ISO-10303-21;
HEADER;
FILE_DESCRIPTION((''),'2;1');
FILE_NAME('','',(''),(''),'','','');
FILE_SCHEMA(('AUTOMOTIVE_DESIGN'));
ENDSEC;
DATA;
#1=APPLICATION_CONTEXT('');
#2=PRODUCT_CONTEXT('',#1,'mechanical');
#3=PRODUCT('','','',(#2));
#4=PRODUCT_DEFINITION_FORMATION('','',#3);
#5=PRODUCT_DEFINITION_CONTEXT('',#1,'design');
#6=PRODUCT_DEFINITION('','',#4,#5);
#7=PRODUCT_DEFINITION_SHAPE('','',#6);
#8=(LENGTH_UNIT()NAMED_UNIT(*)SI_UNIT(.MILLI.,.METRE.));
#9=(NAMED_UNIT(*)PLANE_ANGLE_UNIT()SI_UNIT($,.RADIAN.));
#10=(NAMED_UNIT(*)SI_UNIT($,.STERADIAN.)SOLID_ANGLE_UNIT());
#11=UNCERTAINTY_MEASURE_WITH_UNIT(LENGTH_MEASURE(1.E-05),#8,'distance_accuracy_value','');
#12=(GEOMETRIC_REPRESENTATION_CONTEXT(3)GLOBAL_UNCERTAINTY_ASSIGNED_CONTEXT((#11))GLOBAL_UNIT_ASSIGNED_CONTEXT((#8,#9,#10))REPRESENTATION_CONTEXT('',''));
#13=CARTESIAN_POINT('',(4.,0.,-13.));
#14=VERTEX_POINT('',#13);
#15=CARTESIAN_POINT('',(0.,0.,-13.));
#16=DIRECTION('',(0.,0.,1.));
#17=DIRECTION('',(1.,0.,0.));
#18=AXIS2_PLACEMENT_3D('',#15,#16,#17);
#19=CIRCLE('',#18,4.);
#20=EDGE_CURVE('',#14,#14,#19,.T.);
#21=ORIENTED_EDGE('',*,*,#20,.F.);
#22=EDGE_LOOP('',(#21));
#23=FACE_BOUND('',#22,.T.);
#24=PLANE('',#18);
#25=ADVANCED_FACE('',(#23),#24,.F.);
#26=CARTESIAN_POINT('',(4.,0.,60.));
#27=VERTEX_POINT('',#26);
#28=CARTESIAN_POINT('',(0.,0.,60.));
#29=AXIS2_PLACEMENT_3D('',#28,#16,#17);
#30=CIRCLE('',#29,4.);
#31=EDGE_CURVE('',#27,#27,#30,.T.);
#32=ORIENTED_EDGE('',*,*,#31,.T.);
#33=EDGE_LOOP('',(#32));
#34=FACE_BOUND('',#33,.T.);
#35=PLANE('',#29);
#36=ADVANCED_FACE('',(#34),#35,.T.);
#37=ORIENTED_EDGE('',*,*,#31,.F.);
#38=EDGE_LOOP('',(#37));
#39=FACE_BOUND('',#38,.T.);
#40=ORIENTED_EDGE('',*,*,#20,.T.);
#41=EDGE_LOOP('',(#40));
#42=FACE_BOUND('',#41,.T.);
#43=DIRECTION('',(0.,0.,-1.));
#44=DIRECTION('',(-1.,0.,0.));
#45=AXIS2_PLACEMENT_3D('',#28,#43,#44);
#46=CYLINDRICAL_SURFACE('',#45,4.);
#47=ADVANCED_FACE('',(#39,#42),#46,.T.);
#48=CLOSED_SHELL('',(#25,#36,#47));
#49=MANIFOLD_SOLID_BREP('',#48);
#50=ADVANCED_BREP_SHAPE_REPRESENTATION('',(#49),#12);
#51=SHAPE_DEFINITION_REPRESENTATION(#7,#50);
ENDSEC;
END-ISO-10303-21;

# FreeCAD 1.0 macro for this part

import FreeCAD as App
import Part
import Sketcher

doc = App.newDocument("Part")
body = doc.addObject("PartDesign::Body", "Body")

# Sketch on XY plane
sketch1 = doc.addObject("Sketcher::SketchObject", "Sketch")
body.addObject(sketch1)
sketch1.AttachmentSupport = (doc.XY_Plane, [""])
sketch1.MapMode = "FlatFace"
sketch1.addGeometry(Part.Circle(App.Vector(0, 0, 0), App.Vector(0, 0, 1), 4), False)
sketch1.addConstraint(Sketcher.Constraint("Coincident", 0, 3, -1, 1))
sketch1.addConstraint(Sketcher.Constraint("Diameter", 0, 8.0))
pad1 = doc.addObject("PartDesign::Pad", "Pad")
body.addObject(pad1)
pad1.Profile = sketch1
pad1.Length = 60

# Sketch on XY plane
sketch2 = doc.addObject("Sketcher::SketchObject", "Sketch001")
body.addObject(sketch2)
sketch2.AttachmentSupport = (doc.XY_Plane, [""])
sketch2.MapMode = "FlatFace"
sketch2.addGeometry(Part.Circle(App.Vector(0, 0, 0), App.Vector(0, 0, 1), 4), False)
sketch2.addConstraint(Sketcher.Constraint("Coincident", 0, 3, -1, 1))
sketch2.addConstraint(Sketcher.Constraint("Diameter", 0, 8.0))
pad2 = doc.addObject("PartDesign::Pad", "Pad001")
body.addObject(pad2)
pad2.Profile = sketch2
pad2.Length = 13
pad2.Reversed = True

doc.recompute()
